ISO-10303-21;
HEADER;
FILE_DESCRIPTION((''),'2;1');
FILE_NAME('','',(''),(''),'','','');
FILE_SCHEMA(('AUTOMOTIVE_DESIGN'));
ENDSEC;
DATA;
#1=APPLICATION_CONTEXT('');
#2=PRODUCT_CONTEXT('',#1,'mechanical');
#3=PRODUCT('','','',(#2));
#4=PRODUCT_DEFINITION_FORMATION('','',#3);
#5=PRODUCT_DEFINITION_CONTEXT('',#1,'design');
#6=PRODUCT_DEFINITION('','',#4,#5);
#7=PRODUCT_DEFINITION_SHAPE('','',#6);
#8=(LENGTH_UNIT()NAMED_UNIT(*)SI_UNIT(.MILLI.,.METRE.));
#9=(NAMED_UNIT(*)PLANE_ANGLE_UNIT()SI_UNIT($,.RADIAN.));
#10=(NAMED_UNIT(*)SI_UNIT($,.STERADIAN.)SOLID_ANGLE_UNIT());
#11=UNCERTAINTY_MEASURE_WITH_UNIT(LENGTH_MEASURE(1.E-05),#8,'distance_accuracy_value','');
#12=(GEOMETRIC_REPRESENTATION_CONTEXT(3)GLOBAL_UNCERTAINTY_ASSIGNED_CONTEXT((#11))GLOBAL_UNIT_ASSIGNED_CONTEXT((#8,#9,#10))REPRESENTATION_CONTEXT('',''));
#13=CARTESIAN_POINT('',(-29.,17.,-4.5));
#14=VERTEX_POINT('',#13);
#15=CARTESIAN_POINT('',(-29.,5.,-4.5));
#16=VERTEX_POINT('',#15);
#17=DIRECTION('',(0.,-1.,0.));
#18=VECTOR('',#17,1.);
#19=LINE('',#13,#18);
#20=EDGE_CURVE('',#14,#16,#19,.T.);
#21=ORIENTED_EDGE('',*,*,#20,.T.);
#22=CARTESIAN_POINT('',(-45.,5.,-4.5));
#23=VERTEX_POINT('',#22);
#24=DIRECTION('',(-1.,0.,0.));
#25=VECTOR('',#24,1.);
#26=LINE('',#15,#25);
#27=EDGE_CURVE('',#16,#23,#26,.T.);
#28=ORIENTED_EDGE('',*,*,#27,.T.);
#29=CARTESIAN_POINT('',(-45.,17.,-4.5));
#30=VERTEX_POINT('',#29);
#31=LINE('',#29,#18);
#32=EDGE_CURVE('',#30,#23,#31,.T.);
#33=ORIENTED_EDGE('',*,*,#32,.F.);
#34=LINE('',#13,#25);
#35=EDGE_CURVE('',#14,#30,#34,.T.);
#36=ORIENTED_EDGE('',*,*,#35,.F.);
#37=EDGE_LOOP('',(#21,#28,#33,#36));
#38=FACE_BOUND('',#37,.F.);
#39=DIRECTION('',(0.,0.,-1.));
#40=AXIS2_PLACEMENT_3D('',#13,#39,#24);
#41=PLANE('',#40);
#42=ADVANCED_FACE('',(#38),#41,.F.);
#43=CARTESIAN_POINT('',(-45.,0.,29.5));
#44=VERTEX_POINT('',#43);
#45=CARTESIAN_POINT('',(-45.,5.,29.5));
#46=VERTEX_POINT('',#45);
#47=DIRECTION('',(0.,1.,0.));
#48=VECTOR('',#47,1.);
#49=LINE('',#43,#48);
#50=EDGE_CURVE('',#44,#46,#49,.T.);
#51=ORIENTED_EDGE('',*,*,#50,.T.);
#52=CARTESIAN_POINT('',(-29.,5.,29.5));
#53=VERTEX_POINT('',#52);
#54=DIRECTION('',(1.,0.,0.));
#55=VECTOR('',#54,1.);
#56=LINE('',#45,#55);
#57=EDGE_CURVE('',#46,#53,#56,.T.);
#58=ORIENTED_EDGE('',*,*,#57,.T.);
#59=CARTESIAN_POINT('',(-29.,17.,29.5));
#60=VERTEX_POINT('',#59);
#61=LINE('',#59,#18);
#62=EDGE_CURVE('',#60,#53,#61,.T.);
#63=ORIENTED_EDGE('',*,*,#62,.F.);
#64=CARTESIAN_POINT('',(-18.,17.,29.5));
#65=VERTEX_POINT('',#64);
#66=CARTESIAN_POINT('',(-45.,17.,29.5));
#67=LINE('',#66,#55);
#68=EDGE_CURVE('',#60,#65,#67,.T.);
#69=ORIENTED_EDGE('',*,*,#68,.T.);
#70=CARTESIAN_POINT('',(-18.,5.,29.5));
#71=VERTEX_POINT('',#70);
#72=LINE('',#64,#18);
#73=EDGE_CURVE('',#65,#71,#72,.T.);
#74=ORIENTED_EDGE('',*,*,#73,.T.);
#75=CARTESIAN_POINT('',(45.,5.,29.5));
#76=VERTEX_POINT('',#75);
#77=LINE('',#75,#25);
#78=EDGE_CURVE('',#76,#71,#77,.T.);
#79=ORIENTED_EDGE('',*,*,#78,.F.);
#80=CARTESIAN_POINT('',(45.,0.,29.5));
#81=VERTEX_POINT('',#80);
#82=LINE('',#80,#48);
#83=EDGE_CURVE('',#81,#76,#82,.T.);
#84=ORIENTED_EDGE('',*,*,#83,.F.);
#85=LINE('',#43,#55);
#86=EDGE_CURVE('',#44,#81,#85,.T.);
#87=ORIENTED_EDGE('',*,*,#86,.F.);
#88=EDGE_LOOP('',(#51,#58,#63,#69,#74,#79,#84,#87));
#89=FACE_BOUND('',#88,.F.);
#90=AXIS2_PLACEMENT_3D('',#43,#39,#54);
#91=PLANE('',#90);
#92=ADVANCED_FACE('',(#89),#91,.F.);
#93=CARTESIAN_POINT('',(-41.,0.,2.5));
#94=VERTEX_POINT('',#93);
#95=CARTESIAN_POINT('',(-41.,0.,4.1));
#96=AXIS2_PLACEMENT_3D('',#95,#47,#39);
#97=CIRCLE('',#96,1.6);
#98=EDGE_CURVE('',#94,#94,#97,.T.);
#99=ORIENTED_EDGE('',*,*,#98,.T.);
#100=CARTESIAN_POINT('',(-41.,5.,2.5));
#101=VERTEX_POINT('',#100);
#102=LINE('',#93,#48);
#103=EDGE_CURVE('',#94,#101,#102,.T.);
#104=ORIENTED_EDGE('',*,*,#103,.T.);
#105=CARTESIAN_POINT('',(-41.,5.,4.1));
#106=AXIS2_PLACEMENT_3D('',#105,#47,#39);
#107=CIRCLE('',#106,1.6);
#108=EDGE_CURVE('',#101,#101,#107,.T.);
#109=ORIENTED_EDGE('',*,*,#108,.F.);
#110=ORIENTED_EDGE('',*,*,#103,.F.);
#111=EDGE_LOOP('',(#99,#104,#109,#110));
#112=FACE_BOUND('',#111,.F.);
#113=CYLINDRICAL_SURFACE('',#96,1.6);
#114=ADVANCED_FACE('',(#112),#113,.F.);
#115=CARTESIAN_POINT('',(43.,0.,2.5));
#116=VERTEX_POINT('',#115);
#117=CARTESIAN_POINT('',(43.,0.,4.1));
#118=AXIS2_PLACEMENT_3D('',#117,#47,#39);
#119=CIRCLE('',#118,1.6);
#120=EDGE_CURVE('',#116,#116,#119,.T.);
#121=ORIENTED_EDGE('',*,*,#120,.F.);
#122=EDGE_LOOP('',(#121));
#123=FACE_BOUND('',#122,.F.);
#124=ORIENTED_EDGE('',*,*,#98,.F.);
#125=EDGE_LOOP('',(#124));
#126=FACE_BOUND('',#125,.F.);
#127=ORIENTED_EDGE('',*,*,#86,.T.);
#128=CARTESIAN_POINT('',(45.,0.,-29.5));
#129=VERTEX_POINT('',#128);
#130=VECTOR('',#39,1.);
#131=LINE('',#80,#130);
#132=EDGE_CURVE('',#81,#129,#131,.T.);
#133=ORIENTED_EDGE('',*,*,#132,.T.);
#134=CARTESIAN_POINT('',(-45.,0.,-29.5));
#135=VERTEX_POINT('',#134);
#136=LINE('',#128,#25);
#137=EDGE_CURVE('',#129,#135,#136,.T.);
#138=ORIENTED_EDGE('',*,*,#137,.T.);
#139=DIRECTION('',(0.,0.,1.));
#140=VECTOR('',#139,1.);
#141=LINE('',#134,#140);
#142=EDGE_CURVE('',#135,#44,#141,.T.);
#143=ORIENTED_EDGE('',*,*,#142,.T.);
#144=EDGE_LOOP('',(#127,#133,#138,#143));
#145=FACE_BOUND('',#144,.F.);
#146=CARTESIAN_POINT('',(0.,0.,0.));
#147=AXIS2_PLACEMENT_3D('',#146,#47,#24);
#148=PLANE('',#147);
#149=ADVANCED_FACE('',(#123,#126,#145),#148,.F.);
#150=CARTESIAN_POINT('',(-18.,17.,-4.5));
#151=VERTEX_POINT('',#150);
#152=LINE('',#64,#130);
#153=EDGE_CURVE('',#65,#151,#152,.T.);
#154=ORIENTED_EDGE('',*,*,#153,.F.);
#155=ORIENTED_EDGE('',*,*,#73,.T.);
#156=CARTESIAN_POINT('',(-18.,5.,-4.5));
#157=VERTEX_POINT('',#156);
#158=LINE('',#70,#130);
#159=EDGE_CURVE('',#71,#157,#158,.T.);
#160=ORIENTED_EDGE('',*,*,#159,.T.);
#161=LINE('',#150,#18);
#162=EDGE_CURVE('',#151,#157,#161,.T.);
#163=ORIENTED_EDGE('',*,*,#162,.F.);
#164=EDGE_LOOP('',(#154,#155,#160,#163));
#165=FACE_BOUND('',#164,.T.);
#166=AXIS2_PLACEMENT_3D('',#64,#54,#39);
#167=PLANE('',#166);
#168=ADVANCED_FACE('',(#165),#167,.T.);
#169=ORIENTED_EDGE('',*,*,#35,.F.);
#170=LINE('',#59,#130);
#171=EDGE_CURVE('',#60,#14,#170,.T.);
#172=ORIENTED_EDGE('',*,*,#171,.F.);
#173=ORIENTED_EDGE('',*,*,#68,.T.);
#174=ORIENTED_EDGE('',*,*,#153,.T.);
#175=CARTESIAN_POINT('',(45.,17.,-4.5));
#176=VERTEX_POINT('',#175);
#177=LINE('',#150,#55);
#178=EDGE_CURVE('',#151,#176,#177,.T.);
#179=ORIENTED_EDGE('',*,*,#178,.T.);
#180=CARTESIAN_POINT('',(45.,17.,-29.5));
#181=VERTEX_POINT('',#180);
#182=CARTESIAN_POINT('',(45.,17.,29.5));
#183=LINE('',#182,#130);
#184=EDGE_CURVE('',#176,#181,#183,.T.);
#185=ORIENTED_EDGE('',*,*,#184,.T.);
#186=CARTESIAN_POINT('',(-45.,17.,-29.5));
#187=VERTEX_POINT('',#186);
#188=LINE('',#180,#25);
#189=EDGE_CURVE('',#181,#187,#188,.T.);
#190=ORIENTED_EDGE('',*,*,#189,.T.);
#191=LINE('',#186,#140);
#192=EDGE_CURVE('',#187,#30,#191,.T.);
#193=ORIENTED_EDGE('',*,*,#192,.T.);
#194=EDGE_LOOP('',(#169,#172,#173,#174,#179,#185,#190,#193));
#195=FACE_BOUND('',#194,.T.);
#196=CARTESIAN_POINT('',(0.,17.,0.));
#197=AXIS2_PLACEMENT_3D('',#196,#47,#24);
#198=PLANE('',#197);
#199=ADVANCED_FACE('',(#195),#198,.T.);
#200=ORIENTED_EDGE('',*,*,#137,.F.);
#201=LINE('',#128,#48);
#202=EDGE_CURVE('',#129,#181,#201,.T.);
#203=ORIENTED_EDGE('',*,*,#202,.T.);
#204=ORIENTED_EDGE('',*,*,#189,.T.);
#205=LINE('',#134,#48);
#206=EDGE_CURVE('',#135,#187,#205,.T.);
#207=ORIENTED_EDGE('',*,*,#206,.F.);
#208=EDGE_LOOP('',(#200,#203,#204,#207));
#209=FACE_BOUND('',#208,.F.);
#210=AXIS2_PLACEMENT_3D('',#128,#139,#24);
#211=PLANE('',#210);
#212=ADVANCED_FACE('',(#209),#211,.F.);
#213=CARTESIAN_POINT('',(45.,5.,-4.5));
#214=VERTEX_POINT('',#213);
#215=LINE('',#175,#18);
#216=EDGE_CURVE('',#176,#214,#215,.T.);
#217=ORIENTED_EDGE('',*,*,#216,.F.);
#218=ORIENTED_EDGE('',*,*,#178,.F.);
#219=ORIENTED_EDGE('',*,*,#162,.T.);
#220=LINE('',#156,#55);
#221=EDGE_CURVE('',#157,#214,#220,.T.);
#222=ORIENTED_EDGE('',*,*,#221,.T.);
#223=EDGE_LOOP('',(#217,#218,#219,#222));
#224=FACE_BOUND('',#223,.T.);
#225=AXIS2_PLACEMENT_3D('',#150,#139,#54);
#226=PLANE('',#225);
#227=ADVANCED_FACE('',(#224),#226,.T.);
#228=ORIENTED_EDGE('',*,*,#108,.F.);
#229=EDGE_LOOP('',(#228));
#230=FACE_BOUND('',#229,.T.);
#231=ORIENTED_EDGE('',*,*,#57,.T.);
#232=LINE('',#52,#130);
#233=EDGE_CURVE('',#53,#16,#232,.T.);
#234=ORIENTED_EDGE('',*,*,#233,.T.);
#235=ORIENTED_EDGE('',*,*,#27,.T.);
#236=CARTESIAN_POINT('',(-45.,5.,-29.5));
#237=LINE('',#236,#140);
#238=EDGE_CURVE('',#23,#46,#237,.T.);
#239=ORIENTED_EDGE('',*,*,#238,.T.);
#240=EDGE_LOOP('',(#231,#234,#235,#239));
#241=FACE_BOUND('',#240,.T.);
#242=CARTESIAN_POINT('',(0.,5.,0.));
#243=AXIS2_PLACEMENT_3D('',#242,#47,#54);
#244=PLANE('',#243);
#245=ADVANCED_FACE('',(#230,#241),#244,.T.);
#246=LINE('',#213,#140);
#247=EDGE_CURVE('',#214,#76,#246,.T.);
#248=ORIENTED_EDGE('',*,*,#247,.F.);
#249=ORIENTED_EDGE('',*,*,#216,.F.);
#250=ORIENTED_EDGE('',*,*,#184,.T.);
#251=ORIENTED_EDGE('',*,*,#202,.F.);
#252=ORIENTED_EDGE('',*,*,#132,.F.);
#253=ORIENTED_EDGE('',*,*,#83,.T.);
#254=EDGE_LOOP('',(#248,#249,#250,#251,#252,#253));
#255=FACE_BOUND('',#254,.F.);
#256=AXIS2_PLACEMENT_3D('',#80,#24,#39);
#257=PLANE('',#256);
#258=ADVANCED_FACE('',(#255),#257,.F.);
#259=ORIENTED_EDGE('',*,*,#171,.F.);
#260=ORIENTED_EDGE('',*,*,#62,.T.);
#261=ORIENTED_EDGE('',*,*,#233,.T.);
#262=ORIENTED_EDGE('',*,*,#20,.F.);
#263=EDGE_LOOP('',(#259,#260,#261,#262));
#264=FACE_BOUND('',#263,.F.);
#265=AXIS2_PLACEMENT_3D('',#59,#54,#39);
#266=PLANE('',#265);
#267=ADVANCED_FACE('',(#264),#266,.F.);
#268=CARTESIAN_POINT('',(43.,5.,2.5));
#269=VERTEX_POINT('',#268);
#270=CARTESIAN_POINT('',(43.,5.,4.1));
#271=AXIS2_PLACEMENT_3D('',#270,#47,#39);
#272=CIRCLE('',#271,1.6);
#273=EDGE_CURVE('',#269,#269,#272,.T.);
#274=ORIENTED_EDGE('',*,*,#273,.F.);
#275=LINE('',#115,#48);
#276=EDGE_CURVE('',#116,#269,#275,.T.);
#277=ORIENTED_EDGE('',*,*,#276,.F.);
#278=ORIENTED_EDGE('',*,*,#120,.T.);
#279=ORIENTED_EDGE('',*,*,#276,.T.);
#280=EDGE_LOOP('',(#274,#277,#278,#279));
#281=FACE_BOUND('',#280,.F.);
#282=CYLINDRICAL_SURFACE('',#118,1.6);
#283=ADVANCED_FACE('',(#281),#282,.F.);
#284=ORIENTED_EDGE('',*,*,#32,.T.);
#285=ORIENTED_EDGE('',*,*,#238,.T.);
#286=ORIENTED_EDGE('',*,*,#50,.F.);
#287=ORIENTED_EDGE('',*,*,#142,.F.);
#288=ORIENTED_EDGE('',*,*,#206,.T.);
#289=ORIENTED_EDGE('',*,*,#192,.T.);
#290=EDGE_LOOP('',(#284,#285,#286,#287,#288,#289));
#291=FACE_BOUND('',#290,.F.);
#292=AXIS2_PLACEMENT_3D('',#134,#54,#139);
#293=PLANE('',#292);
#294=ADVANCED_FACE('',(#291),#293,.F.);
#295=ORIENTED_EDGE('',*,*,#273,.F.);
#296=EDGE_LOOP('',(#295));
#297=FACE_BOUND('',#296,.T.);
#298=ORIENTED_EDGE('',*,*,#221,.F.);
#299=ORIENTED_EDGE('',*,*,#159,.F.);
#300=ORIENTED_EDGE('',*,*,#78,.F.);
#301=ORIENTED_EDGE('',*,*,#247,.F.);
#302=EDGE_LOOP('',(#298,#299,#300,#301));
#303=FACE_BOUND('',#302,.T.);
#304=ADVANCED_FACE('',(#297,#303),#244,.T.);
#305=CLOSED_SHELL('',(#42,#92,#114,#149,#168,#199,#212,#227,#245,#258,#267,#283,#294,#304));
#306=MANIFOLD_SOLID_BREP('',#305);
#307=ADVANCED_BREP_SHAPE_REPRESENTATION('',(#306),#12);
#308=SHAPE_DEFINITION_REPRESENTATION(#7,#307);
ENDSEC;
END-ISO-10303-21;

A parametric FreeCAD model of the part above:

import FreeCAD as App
import Part
import Sketcher
Q = App.Units.Quantity

doc = App.newDocument("Part")
params = doc.addObject("Spreadsheet::Sheet", "Params")
for row, (alias, value) in enumerate([
    ("sketch1_width", "90 mm"),
    ("sketch1_height", "59 mm"),
    ("pad1_length", "17 mm"),
    ("sketch2_width", "16 mm"),
    ("sketch2_width2", "63 mm"),
    ("sketch2_height", "34 mm"),
    ("pocket1_length", "12 mm"),
    ("sketch3_diameter", "3.2 mm"),
    ("hole_diameter", "3.2 mm"),
], start=1):
    params.set(f"A{row}", alias)
    params.set(f"B{row}", "=" + value)
    params.setAlias(f"B{row}", alias)

body = doc.addObject("PartDesign::Body", "Body")

# Sketch on XZ plane
sketch1 = body.newObject("Sketcher::SketchObject", "Sketch")
sketch1.AttachmentSupport = (doc.getObject("XZ_Plane"), [""])
sketch1.MapMode = "FlatFace"
sketch1.addGeometry([
    Part.LineSegment(App.Vector(45, 30, 0), App.Vector(45, -30, 0)),
    Part.LineSegment(App.Vector(45, -30, 0), App.Vector(-45, -30, 0)),
    Part.LineSegment(App.Vector(-45, -30, 0), App.Vector(-45, 30, 0)),
    Part.LineSegment(App.Vector(-45, 30, 0), App.Vector(45, 30, 0)),
], False)
sketch1.addConstraint([
    Sketcher.Constraint("Coincident", 0, 2, 1, 1),
    Sketcher.Constraint("Coincident", 1, 2, 2, 1),
    Sketcher.Constraint("Coincident", 2, 2, 3, 1),
    Sketcher.Constraint("Coincident", 3, 2, 0, 1),
    Sketcher.Constraint("Vertical", 0),
    Sketcher.Constraint("Horizontal", 1),
    Sketcher.Constraint("Vertical", 2),
    Sketcher.Constraint("Horizontal", 3),
    Sketcher.Constraint("Symmetric", 0, 2, 2, 2, -1, 1),
    Sketcher.Constraint("DistanceX", 1, 2, 1, 1, Q("90 mm")),
    Sketcher.Constraint("DistanceY", 0, 2, 0, 1, Q("59 mm")),
])
sketch1.setExpression("Constraints[9]", "Params.sketch1_width")
sketch1.setExpression("Constraints[10]", "Params.sketch1_height")
pad1 = body.newObject("PartDesign::Pad", "Pad")
pad1.Profile = sketch1
pad1.setExpression("Length", "Params.pad1_length")
pad1.Reversed = True

# Sketch on XZ plane
sketch2 = body.newObject("Sketcher::SketchObject", "Sketch001")
sketch2.AttachmentSupport = (doc.getObject("XZ_Plane"), [""])
sketch2.MapMode = "FlatFace"
sketch2.AttachmentOffset = App.Placement(App.Vector(0, 0, -17), App.Rotation())
sketch2.addGeometry([
    Part.LineSegment(App.Vector(-29, -4, 0), App.Vector(-45, -4, 0)),  # 0
    Part.LineSegment(App.Vector(-45, -4, 0), App.Vector(-45, 30, 0)),  # 1
    Part.LineSegment(App.Vector(-45, 30, 0), App.Vector(-29, 30, 0)),  # 2
    Part.LineSegment(App.Vector(-29, 30, 0), App.Vector(-29, -4, 0)),  # 3
    Part.LineSegment(App.Vector(45, 30, 0), App.Vector(45, -4, 0)),  # 4
    Part.LineSegment(App.Vector(45, -4, 0), App.Vector(-18, -4, 0)),  # 5
    Part.LineSegment(App.Vector(-18, -4, 0), App.Vector(-18, 30, 0)),  # 6
    Part.LineSegment(App.Vector(-18, 30, 0), App.Vector(45, 30, 0)),  # 7
], False)
sketch2.addConstraint([
    Sketcher.Constraint("Coincident", 0, 2, 1, 1),
    Sketcher.Constraint("Coincident", 1, 2, 2, 1),
    Sketcher.Constraint("Coincident", 2, 2, 3, 1),
    Sketcher.Constraint("Coincident", 3, 2, 0, 1),
    Sketcher.Constraint("Coincident", 4, 2, 5, 1),
    Sketcher.Constraint("Coincident", 5, 2, 6, 1),
    Sketcher.Constraint("Coincident", 6, 2, 7, 1),
    Sketcher.Constraint("Coincident", 7, 2, 4, 1),
    Sketcher.Constraint("Horizontal", 0),
    Sketcher.Constraint("Vertical", 1),
    Sketcher.Constraint("Horizontal", 2),
    Sketcher.Constraint("Vertical", 3),
    Sketcher.Constraint("Vertical", 4),
    Sketcher.Constraint("Horizontal", 5),
    Sketcher.Constraint("Vertical", 6),
    Sketcher.Constraint("Horizontal", 7),
    Sketcher.Constraint("Symmetric", 0, 2, 4, 2, -2),
    Sketcher.Constraint("Horizontal", 2, 2, 6, 2),
    Sketcher.Constraint("DistanceX", 0, 2, 0, 1, Q("16 mm")),
    Sketcher.Constraint("DistanceX", 5, 2, 5, 1, Q("63 mm")),
    Sketcher.Constraint("DistanceY", 1, 1, 1, 2, Q("34 mm")),
    Sketcher.Constraint("DistanceX", 0, 2, -1, 1, Q("45 mm")),
    Sketcher.Constraint("DistanceY", 0, 2, -1, 1, Q("4.5 mm")),
])
sketch2.setExpression("Constraints[18]", "Params.sketch2_width")
sketch2.setExpression("Constraints[19]", "Params.sketch2_width2")
sketch2.setExpression("Constraints[20]", "Params.sketch2_height")
pocket1 = body.newObject("PartDesign::Pocket", "Pocket")
pocket1.Profile = sketch2
pocket1.setExpression("Length", "Params.pocket1_length")
pocket1.Reversed = True

# Sketch on XZ plane
sketch3 = body.newObject("Sketcher::SketchObject", "Sketch002")
sketch3.AttachmentSupport = (doc.getObject("XZ_Plane"), [""])
sketch3.MapMode = "FlatFace"
sketch3.addGeometry([
    Part.Circle(App.Vector(-41, 4.1, 0), App.Vector(0, 0, 1), 1.6),
    Part.Circle(App.Vector(43, 4.1, 0), App.Vector(0, 0, 1), 1.6),
], False)
sketch3.addConstraint([
    Sketcher.Constraint("Equal", 0, 1),
    Sketcher.Constraint("Horizontal", 0, 3, 1, 3),
    Sketcher.Constraint("Diameter", 0, Q("3.2 mm")),
    Sketcher.Constraint("DistanceX", 0, 3, -1, 1, Q("41 mm")),
    Sketcher.Constraint("DistanceX", -1, 1, 1, 3, Q("43 mm")),
    Sketcher.Constraint("DistanceY", -1, 1, 0, 3, Q("4.1 mm")),
])
sketch3.setExpression("Constraints[2]", "Params.sketch3_diameter")
doc.recompute()
hole = body.newObject("PartDesign::Hole", "Hole")
hole.Profile = sketch3
hole.ThreadType = "None"
hole.setExpression("Diameter", "Params.hole_diameter")
hole.DepthType = "ThroughAll"

doc.recompute()
